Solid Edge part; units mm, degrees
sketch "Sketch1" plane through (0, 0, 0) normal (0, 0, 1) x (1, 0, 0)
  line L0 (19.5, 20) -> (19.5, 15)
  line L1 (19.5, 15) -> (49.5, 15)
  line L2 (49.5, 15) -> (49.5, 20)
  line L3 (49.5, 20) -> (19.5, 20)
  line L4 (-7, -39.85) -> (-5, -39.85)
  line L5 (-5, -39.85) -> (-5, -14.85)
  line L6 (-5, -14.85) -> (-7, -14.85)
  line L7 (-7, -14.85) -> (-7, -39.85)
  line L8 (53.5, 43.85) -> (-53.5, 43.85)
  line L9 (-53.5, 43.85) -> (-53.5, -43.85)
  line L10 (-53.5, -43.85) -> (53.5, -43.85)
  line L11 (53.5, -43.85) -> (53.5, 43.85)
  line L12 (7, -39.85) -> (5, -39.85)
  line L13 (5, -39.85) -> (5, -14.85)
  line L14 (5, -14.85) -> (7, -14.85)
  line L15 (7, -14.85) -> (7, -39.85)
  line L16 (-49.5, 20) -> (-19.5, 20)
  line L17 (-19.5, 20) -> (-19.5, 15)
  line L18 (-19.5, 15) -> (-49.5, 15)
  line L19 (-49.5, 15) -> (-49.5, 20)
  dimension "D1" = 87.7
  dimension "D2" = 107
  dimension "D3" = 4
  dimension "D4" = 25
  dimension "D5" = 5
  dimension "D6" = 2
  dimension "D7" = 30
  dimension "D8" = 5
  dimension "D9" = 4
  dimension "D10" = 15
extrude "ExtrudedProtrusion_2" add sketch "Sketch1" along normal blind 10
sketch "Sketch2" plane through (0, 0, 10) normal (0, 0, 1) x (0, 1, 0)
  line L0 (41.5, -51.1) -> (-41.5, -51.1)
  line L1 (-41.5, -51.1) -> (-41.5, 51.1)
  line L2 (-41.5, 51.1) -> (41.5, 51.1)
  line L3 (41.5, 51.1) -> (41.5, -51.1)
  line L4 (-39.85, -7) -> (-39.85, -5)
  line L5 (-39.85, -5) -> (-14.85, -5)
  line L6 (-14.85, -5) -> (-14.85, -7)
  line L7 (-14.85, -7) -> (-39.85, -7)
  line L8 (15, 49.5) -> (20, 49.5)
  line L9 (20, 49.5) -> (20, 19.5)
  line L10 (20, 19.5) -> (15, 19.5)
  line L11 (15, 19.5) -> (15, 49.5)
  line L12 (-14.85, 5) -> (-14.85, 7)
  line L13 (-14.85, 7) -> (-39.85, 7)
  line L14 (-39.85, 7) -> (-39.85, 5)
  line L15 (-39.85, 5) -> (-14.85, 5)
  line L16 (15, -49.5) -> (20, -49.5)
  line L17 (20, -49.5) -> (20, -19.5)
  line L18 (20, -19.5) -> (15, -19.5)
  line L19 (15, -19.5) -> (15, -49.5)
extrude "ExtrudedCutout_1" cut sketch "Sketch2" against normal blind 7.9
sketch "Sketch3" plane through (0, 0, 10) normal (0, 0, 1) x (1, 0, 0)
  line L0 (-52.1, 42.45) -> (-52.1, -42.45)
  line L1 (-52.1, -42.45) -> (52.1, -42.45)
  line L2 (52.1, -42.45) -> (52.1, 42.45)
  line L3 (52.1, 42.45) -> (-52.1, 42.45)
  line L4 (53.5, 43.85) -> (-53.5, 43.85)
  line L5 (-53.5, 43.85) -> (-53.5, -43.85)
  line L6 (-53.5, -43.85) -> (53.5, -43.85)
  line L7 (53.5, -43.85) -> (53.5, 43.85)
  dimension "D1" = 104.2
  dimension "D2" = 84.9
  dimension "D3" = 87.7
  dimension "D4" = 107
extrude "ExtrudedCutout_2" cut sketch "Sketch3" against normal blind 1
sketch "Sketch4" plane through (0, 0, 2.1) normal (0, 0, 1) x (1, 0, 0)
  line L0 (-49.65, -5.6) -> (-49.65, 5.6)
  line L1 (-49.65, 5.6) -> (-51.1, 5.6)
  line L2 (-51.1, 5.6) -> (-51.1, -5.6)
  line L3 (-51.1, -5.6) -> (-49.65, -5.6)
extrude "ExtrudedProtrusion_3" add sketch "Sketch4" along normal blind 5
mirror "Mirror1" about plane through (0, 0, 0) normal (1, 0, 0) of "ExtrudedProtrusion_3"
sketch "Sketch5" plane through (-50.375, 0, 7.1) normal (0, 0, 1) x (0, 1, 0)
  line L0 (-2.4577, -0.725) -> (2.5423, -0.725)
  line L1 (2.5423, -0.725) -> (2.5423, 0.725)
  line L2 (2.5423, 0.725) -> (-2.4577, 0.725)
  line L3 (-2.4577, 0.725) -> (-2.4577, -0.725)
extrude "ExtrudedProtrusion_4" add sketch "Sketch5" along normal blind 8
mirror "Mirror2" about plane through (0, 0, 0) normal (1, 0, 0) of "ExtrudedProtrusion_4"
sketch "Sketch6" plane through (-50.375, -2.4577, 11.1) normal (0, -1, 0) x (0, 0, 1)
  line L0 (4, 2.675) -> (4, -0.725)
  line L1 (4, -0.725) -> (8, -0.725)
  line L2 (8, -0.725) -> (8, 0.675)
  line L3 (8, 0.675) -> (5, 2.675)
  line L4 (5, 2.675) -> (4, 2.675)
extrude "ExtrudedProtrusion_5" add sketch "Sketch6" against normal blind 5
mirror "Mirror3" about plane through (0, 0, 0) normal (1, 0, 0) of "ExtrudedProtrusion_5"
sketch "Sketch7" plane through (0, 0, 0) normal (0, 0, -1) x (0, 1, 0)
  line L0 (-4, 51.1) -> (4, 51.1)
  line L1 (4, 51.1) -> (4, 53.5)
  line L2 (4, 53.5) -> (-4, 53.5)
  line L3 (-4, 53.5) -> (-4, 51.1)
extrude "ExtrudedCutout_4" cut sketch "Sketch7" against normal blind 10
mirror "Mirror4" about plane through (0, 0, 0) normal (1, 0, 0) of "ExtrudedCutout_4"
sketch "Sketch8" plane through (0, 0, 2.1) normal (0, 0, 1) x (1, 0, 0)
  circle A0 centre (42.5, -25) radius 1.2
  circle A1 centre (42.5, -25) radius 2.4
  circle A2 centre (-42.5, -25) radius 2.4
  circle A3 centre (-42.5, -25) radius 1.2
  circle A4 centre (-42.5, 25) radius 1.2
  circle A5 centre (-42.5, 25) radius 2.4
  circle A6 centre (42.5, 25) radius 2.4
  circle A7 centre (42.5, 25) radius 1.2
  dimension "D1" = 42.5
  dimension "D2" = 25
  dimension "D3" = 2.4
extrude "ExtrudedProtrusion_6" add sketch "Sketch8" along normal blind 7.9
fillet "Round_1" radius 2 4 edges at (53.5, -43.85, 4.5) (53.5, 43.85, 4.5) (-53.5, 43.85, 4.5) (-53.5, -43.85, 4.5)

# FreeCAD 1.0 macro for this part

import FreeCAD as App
import Part
import Sketcher
Q = App.Units.Quantity


def edges_at(feature, points):
    """Names of the edges that pass closest to the given points."""
    edges = feature.Shape.Edges
    near = lambda p: min(range(len(edges)), key=lambda i: edges[i].distToShape(Part.Vertex(*p))[0])
    return sorted({f"Edge{near(p) + 1}" for p in points})

doc = App.newDocument("Part")
params = doc.addObject("Spreadsheet::Sheet", "Params")
for row, (alias, value) in enumerate([
    ("sketch1_width", "107 mm"),
    ("sketch1_width2", "2 mm"),
    ("sketch1_width3", "30 mm"),
    ("sketch1_height", "25 mm"),
    ("sketch1_height2", "5 mm"),
    ("pad1_length", "10 mm"),
    ("sketch2_width", "2 mm"),
    ("sketch2_width2", "30 mm"),
    ("sketch2_height", "83 mm"),
    ("sketch2_height2", "25 mm"),
    ("sketch2_height3", "5 mm"),
    ("pocket1_length", "7.9 mm"),
    ("sketch3_width", "107 mm"),
    ("sketch3_width2", "104.2 mm"),
    ("sketch3_height", "87.7 mm"),
    ("sketch3_height2", "84.9 mm"),
    ("pocket2_length", "1 mm"),
    ("sketch4_height", "11.2 mm"),
    ("sketch4_width", "1.45 mm"),
    ("pad2_length", "5 mm"),
    ("sketch5_height", "5 mm"),
    ("sketch5_width", "1.45 mm"),
    ("pad3_length", "8 mm"),
    ("sketch6_height", "1 mm"),
    ("sketch6_height2", "4 mm"),
    ("sketch6_width", "3.4 mm"),
    ("sketch6_width2", "1.4 mm"),
    ("pad4_length", "5 mm"),
    ("sketch7_height", "8 mm"),
    ("sketch7_width", "2.4 mm"),
    ("pocket3_length", "10 mm"),
    ("sketch8_diameter", "4.8 mm"),
    ("sketch8_diameter2", "2.4 mm"),
    ("pad5_length", "7.9 mm"),
    ("fillet_radius", "2 mm"),
], start=1):
    params.set(f"A{row}", alias)
    params.set(f"B{row}", "=" + value)
    params.setAlias(f"B{row}", alias)

body = doc.addObject("PartDesign::Body", "Body")

# Sketch on XY plane
sketch1 = body.newObject("Sketcher::SketchObject", "Sketch")
sketch1.AttachmentSupport = (doc.getObject("XY_Plane"), [""])
sketch1.MapMode = "FlatFace"
sketch1.addGeometry(Part.LineSegment(App.Vector(53.5, -43.85, 0), App.Vector(53.5, 43.85, 0)), False)
sketch1.addGeometry(Part.LineSegment(App.Vector(53.5, 43.85, 0), App.Vector(-53.5, 43.85, 0)), False)
sketch1.addGeometry(Part.LineSegment(App.Vector(-53.5, 43.85, 0), App.Vector(-53.5, -43.85, 0)), False)
sketch1.addGeometry(Part.LineSegment(App.Vector(-53.5, -43.85, 0), App.Vector(53.5, -43.85, 0)), False)
sketch1.addGeometry(Part.LineSegment(App.Vector(-5, -39.85, 0), App.Vector(-7, -39.85, 0)), False)
sketch1.addGeometry(Part.LineSegment(App.Vector(-7, -39.85, 0), App.Vector(-7, -14.85, 0)), False)
sketch1.addGeometry(Part.LineSegment(App.Vector(-7, -14.85, 0), App.Vector(-5, -14.85, 0)), False)
sketch1.addGeometry(Part.LineSegment(App.Vector(-5, -14.85, 0), App.Vector(-5, -39.85, 0)), False)
sketch1.addGeometry(Part.LineSegment(App.Vector(7, -14.85, 0), App.Vector(7, -39.85, 0)), False)
sketch1.addGeometry(Part.LineSegment(App.Vector(7, -39.85, 0), App.Vector(5, -39.85, 0)), False)
sketch1.addGeometry(Part.LineSegment(App.Vector(5, -39.85, 0), App.Vector(5, -14.85, 0)), False)
sketch1.addGeometry(Part.LineSegment(App.Vector(5, -14.85, 0), App.Vector(7, -14.85, 0)), False)
sketch1.addGeometry(Part.LineSegment(App.Vector(-49.5, 15, 0), App.Vector(-49.5, 20, 0)), False)
sketch1.addGeometry(Part.LineSegment(App.Vector(-49.5, 20, 0), App.Vector(-19.5, 20, 0)), False)
sketch1.addGeometry(Part.LineSegment(App.Vector(-19.5, 20, 0), App.Vector(-19.5, 15, 0)), False)
sketch1.addGeometry(Part.LineSegment(App.Vector(-19.5, 15, 0), App.Vector(-49.5, 15, 0)), False)
sketch1.addGeometry(Part.LineSegment(App.Vector(19.5, 15, 0), App.Vector(19.5, 20, 0)), False)
sketch1.addGeometry(Part.LineSegment(App.Vector(19.5, 20, 0), App.Vector(49.5, 20, 0)), False)
sketch1.addGeometry(Part.LineSegment(App.Vector(49.5, 20, 0), App.Vector(49.5, 15, 0)), False)
sketch1.addGeometry(Part.LineSegment(App.Vector(49.5, 15, 0), App.Vector(19.5, 15, 0)), False)
sketch1.addConstraint(Sketcher.Constraint("Coincident", 0, 2, 1, 1))
sketch1.addConstraint(Sketcher.Constraint("Coincident", 1, 2, 2, 1))
sketch1.addConstraint(Sketcher.Constraint("Coincident", 2, 2, 3, 1))
sketch1.addConstraint(Sketcher.Constraint("Coincident", 3, 2, 0, 1))
sketch1.addConstraint(Sketcher.Constraint("Coincident", 4, 2, 5, 1))
sketch1.addConstraint(Sketcher.Constraint("Coincident", 5, 2, 6, 1))
sketch1.addConstraint(Sketcher.Constraint("Coincident", 6, 2, 7, 1))
sketch1.addConstraint(Sketcher.Constraint("Coincident", 7, 2, 4, 1))
sketch1.addConstraint(Sketcher.Constraint("Coincident", 8, 2, 9, 1))
sketch1.addConstraint(Sketcher.Constraint("Coincident", 9, 2, 10, 1))
sketch1.addConstraint(Sketcher.Constraint("Coincident", 10, 2, 11, 1))
sketch1.addConstraint(Sketcher.Constraint("Coincident", 11, 2, 8, 1))
sketch1.addConstraint(Sketcher.Constraint("Coincident", 12, 2, 13, 1))
sketch1.addConstraint(Sketcher.Constraint("Coincident", 13, 2, 14, 1))
sketch1.addConstraint(Sketcher.Constraint("Coincident", 14, 2, 15, 1))
sketch1.addConstraint(Sketcher.Constraint("Coincident", 15, 2, 12, 1))
sketch1.addConstraint(Sketcher.Constraint("Coincident", 16, 2, 17, 1))
sketch1.addConstraint(Sketcher.Constraint("Coincident", 17, 2, 18, 1))
sketch1.addConstraint(Sketcher.Constraint("Coincident", 18, 2, 19, 1))
sketch1.addConstraint(Sketcher.Constraint("Coincident", 19, 2, 16, 1))
sketch1.addConstraint(Sketcher.Constraint("Vertical", 0))
sketch1.addConstraint(Sketcher.Constraint("Horizontal", 1))
sketch1.addConstraint(Sketcher.Constraint("Vertical", 2))
sketch1.addConstraint(Sketcher.Constraint("Horizontal", 3))
sketch1.addConstraint(Sketcher.Constraint("Horizontal", 4))
sketch1.addConstraint(Sketcher.Constraint("Vertical", 5))
sketch1.addConstraint(Sketcher.Constraint("Horizontal", 6))
sketch1.addConstraint(Sketcher.Constraint("Vertical", 7))
sketch1.addConstraint(Sketcher.Constraint("Vertical", 8))
sketch1.addConstraint(Sketcher.Constraint("Horizontal", 9))
sketch1.addConstraint(Sketcher.Constraint("Vertical", 10))
sketch1.addConstraint(Sketcher.Constraint("Horizontal", 11))
sketch1.addConstraint(Sketcher.Constraint("Vertical", 12))
sketch1.addConstraint(Sketcher.Constraint("Horizontal", 13))
sketch1.addConstraint(Sketcher.Constraint("Vertical", 14))
sketch1.addConstraint(Sketcher.Constraint("Horizontal", 15))
sketch1.addConstraint(Sketcher.Constraint("Vertical", 16))
sketch1.addConstraint(Sketcher.Constraint("Horizontal", 17))
sketch1.addConstraint(Sketcher.Constraint("Vertical", 18))
sketch1.addConstraint(Sketcher.Constraint("Horizontal", 19))
sketch1.addConstraint(Sketcher.Constraint("Symmetric", 0, 2, 2, 2, -1, 1))
sketch1.addConstraint(Sketcher.Constraint("Symmetric", 4, 2, 8, 2, -2))
sketch1.addConstraint(Sketcher.Constraint("Symmetric", 6, 2, 10, 2, -2))
sketch1.addConstraint(Sketcher.Constraint("Symmetric", 13, 2, 16, 2, -2))
sketch1.addConstraint(Sketcher.Constraint("Symmetric", 15, 2, 18, 2, -2))
sketch1.addConstraint(Sketcher.Constraint("DistanceX", 1, 2, 1, 1, Q("107 mm")))
sketch1.addConstraint(Sketcher.Constraint("DistanceX", 4, 2, 4, 1, Q("2 mm")))
sketch1.addConstraint(Sketcher.Constraint("DistanceX", 13, 1, 13, 2, Q("30 mm")))
sketch1.addConstraint(Sketcher.Constraint("DistanceY", 5, 1, 5, 2, Q("25 mm")))
sketch1.addConstraint(Sketcher.Constraint("DistanceY", 12, 1, 12, 2, Q("5 mm")))
sketch1.addConstraint(Sketcher.Constraint("DistanceY", 0, 1, 0, 2, Q("87.7 mm")))
sketch1.addConstraint(Sketcher.Constraint("DistanceX", 4, 2, -1, 1, Q("7 mm")))
sketch1.addConstraint(Sketcher.Constraint("DistanceY", -1, 1, 12, 2, Q("20 mm")))
sketch1.addConstraint(Sketcher.Constraint("DistanceY", 2, 2, 4, 2, Q("4 mm")))
sketch1.addConstraint(Sketcher.Constraint("DistanceX", 1, 2, 12, 2, Q("4 mm")))
sketch1.setExpression("Constraints[45]", "Params.sketch1_width")
sketch1.setExpression("Constraints[46]", "Params.sketch1_width2")
sketch1.setExpression("Constraints[47]", "Params.sketch1_width3")
sketch1.setExpression("Constraints[48]", "Params.sketch1_height")
sketch1.setExpression("Constraints[49]", "Params.sketch1_height2")
pad1 = body.newObject("PartDesign::Pad", "Pad")
pad1.Profile = sketch1
pad1.setExpression("Length", "Params.pad1_length")

# Sketch on XY plane
sketch2 = body.newObject("Sketcher::SketchObject", "Sketch001")
sketch2.AttachmentSupport = (doc.getObject("XY_Plane"), [""])
sketch2.MapMode = "FlatFace"
sketch2.AttachmentOffset = App.Placement(App.Vector(0, 0, 10), App.Rotation())
sketch2.addGeometry(Part.LineSegment(App.Vector(51.1, -41.5, 0), App.Vector(51.1, 41.5, 0)), False)
sketch2.addGeometry(Part.LineSegment(App.Vector(51.1, 41.5, 0), App.Vector(-51.1, 41.5, 0)), False)
sketch2.addGeometry(Part.LineSegment(App.Vector(-51.1, 41.5, 0), App.Vector(-51.1, -41.5, 0)), False)
sketch2.addGeometry(Part.LineSegment(App.Vector(-51.1, -41.5, 0), App.Vector(51.1, -41.5, 0)), False)
sketch2.addGeometry(Part.LineSegment(App.Vector(7, -14.85, 0), App.Vector(7, -39.85, 0)), False)
sketch2.addGeometry(Part.LineSegment(App.Vector(7, -39.85, 0), App.Vector(5, -39.85, 0)), False)
sketch2.addGeometry(Part.LineSegment(App.Vector(5, -39.85, 0), App.Vector(5, -14.85, 0)), False)
sketch2.addGeometry(Part.LineSegment(App.Vector(5, -14.85, 0), App.Vector(7, -14.85, 0)), False)
sketch2.addGeometry(Part.LineSegment(App.Vector(49.5, 20, 0), App.Vector(49.5, 15, 0)), False)
sketch2.addGeometry(Part.LineSegment(App.Vector(49.5, 15, 0), App.Vector(19.5, 15, 0)), False)
sketch2.addGeometry(Part.LineSegment(App.Vector(19.5, 15, 0), App.Vector(19.5, 20, 0)), False)
sketch2.addGeometry(Part.LineSegment(App.Vector(19.5, 20, 0), App.Vector(49.5, 20, 0)), False)
sketch2.addGeometry(Part.LineSegment(App.Vector(-7, -14.85, 0), App.Vector(-5, -14.85, 0)), False)
sketch2.addGeometry(Part.LineSegment(App.Vector(-5, -14.85, 0), App.Vector(-5, -39.85, 0)), False)
sketch2.addGeometry(Part.LineSegment(App.Vector(-5, -39.85, 0), App.Vector(-7, -39.85, 0)), False)
sketch2.addGeometry(Part.LineSegment(App.Vector(-7, -39.85, 0), App.Vector(-7, -14.85, 0)), False)
sketch2.addGeometry(Part.LineSegment(App.Vector(-19.5, 15, 0), App.Vector(-49.5, 15, 0)), False)
sketch2.addGeometry(Part.LineSegment(App.Vector(-49.5, 15, 0), App.Vector(-49.5, 20, 0)), False)
sketch2.addGeometry(Part.LineSegment(App.Vector(-49.5, 20, 0), App.Vector(-19.5, 20, 0)), False)
sketch2.addGeometry(Part.LineSegment(App.Vector(-19.5, 20, 0), App.Vector(-19.5, 15, 0)), False)
sketch2.addConstraint(Sketcher.Constraint("Coincident", 0, 2, 1, 1))
sketch2.addConstraint(Sketcher.Constraint("Coincident", 1, 2, 2, 1))
sketch2.addConstraint(Sketcher.Constraint("Coincident", 2, 2, 3, 1))
sketch2.addConstraint(Sketcher.Constraint("Coincident", 3, 2, 0, 1))
sketch2.addConstraint(Sketcher.Constraint("Coincident", 4, 2, 5, 1))
sketch2.addConstraint(Sketcher.Constraint("Coincident", 5, 2, 6, 1))
sketch2.addConstraint(Sketcher.Constraint("Coincident", 6, 2, 7, 1))
sketch2.addConstraint(Sketcher.Constraint("Coincident", 7, 2, 4, 1))
sketch2.addConstraint(Sketcher.Constraint("Coincident", 8, 2, 9, 1))
sketch2.addConstraint(Sketcher.Constraint("Coincident", 9, 2, 10, 1))
sketch2.addConstraint(Sketcher.Constraint("Coincident", 10, 2, 11, 1))
sketch2.addConstraint(Sketcher.Constraint("Coincident", 11, 2, 8, 1))
sketch2.addConstraint(Sketcher.Constraint("Coincident", 12, 2, 13, 1))
sketch2.addConstraint(Sketcher.Constraint("Coincident", 13, 2, 14, 1))
sketch2.addConstraint(Sketcher.Constraint("Coincident", 14, 2, 15, 1))
sketch2.addConstraint(Sketcher.Constraint("Coincident", 15, 2, 12, 1))
sketch2.addConstraint(Sketcher.Constraint("Coincident", 16, 2, 17, 1))
sketch2.addConstraint(Sketcher.Constraint("Coincident", 17, 2, 18, 1))
sketch2.addConstraint(Sketcher.Constraint("Coincident", 18, 2, 19, 1))
sketch2.addConstraint(Sketcher.Constraint("Coincident", 19, 2, 16, 1))
sketch2.addConstraint(Sketcher.Constraint("Vertical", 0))
sketch2.addConstraint(Sketcher.Constraint("Horizontal", 1))
sketch2.addConstraint(Sketcher.Constraint("Vertical", 2))
sketch2.addConstraint(Sketcher.Constraint("Horizontal", 3))
sketch2.addConstraint(Sketcher.Constraint("Vertical", 4))
sketch2.addConstraint(Sketcher.Constraint("Horizontal", 5))
sketch2.addConstraint(Sketcher.Constraint("Vertical", 6))
sketch2.addConstraint(Sketcher.Constraint("Horizontal", 7))
sketch2.addConstraint(Sketcher.Constraint("Vertical", 8))
sketch2.addConstraint(Sketcher.Constraint("Horizontal", 9))
sketch2.addConstraint(Sketcher.Constraint("Vertical", 10))
sketch2.addConstraint(Sketcher.Constraint("Horizontal", 11))
sketch2.addConstraint(Sketcher.Constraint("Horizontal", 12))
sketch2.addConstraint(Sketcher.Constraint("Vertical", 13))
sketch2.addConstraint(Sketcher.Constraint("Horizontal", 14))
sketch2.addConstraint(Sketcher.Constraint("Vertical", 15))
sketch2.addConstraint(Sketcher.Constraint("Horizontal", 16))
sketch2.addConstraint(Sketcher.Constraint("Vertical", 17))
sketch2.addConstraint(Sketcher.Constraint("Horizontal", 18))
sketch2.addConstraint(Sketcher.Constraint("Vertical", 19))
sketch2.addConstraint(Sketcher.Constraint("Symmetric", 0, 2, 2, 2, -1, 1))
sketch2.addConstraint(Sketcher.Constraint("Symmetric", 6, 2, 12, 2, -2))
sketch2.addConstraint(Sketcher.Constraint("Symmetric", 4, 2, 14, 2, -2))
sketch2.addConstraint(Sketcher.Constraint("Symmetric", 8, 2, 16, 2, -2))
sketch2.addConstraint(Sketcher.Constraint("Symmetric", 10, 2, 18, 2, -2))
sketch2.addConstraint(Sketcher.Constraint("DistanceX", 5, 2, 5, 1, Q("2 mm")))
sketch2.addConstraint(Sketcher.Constraint("DistanceX", 9, 2, 9, 1, Q("30 mm")))
sketch2.addConstraint(Sketcher.Constraint("DistanceY", 0, 1, 0, 2, Q("83 mm")))
sketch2.addConstraint(Sketcher.Constraint("DistanceY", 4, 2, 4, 1, Q("25 mm")))
sketch2.addConstraint(Sketcher.Constraint("DistanceY", 8, 2, 8, 1, Q("5 mm")))
sketch2.addConstraint(Sketcher.Constraint("DistanceX", 1, 2, 1, 1, Q("102.2 mm")))
sketch2.addConstraint(Sketcher.Constraint("DistanceX", -1, 1, 4, 2, Q("7 mm")))
sketch2.addConstraint(Sketcher.Constraint("DistanceY", -1, 1, 8, 2, Q("15 mm")))
sketch2.addConstraint(Sketcher.Constraint("DistanceX", -1, 1, 8, 2, Q("49.5 mm")))
sketch2.addConstraint(Sketcher.Constraint("DistanceY", 4, 2, -1, 1, Q("39.85 mm")))
sketch2.setExpression("Constraints[45]", "Params.sketch2_width")
sketch2.setExpression("Constraints[46]", "Params.sketch2_width2")
sketch2.setExpression("Constraints[47]", "Params.sketch2_height")
sketch2.setExpression("Constraints[48]", "Params.sketch2_height2")
sketch2.setExpression("Constraints[49]", "Params.sketch2_height3")
pocket1 = body.newObject("PartDesign::Pocket", "Pocket")
pocket1.Profile = sketch2
pocket1.setExpression("Length", "Params.pocket1_length")

# Sketch on XY plane
sketch3 = body.newObject("Sketcher::SketchObject", "Sketch002")
sketch3.AttachmentSupport = (doc.getObject("XY_Plane"), [""])
sketch3.MapMode = "FlatFace"
sketch3.AttachmentOffset = App.Placement(App.Vector(0, 0, 10), App.Rotation())
sketch3.addGeometry(Part.LineSegment(App.Vector(53.5, -43.85, 0), App.Vector(53.5, 43.85, 0)), False)
sketch3.addGeometry(Part.LineSegment(App.Vector(53.5, 43.85, 0), App.Vector(-53.5, 43.85, 0)), False)
sketch3.addGeometry(Part.LineSegment(App.Vector(-53.5, 43.85, 0), App.Vector(-53.5, -43.85, 0)), False)
sketch3.addGeometry(Part.LineSegment(App.Vector(-53.5, -43.85, 0), App.Vector(53.5, -43.85, 0)), False)
sketch3.addGeometry(Part.LineSegment(App.Vector(-52.1, -42.45, 0), App.Vector(-52.1, 42.45, 0)), False)
sketch3.addGeometry(Part.LineSegment(App.Vector(-52.1, 42.45, 0), App.Vector(52.1, 42.45, 0)), False)
sketch3.addGeometry(Part.LineSegment(App.Vector(52.1, 42.45, 0), App.Vector(52.1, -42.45, 0)), False)
sketch3.addGeometry(Part.LineSegment(App.Vector(52.1, -42.45, 0), App.Vector(-52.1, -42.45, 0)), False)
sketch3.addConstraint(Sketcher.Constraint("Coincident", 0, 2, 1, 1))
sketch3.addConstraint(Sketcher.Constraint("Coincident", 1, 2, 2, 1))
sketch3.addConstraint(Sketcher.Constraint("Coincident", 2, 2, 3, 1))
sketch3.addConstraint(Sketcher.Constraint("Coincident", 3, 2, 0, 1))
sketch3.addConstraint(Sketcher.Constraint("Coincident", 4, 2, 5, 1))
sketch3.addConstraint(Sketcher.Constraint("Coincident", 5, 2, 6, 1))
sketch3.addConstraint(Sketcher.Constraint("Coincident", 6, 2, 7, 1))
sketch3.addConstraint(Sketcher.Constraint("Coincident", 7, 2, 4, 1))
sketch3.addConstraint(Sketcher.Constraint("Vertical", 0))
sketch3.addConstraint(Sketcher.Constraint("Horizontal", 1))
sketch3.addConstraint(Sketcher.Constraint("Vertical", 2))
sketch3.addConstraint(Sketcher.Constraint("Horizontal", 3))
sketch3.addConstraint(Sketcher.Constraint("Vertical", 4))
sketch3.addConstraint(Sketcher.Constraint("Horizontal", 5))
sketch3.addConstraint(Sketcher.Constraint("Vertical", 6))
sketch3.addConstraint(Sketcher.Constraint("Horizontal", 7))
sketch3.addConstraint(Sketcher.Constraint("Symmetric", 0, 2, 2, 2, -1, 1))
sketch3.addConstraint(Sketcher.Constraint("Symmetric", 4, 2, 6, 2, -1, 1))
sketch3.addConstraint(Sketcher.Constraint("DistanceX", 1, 2, 1, 1, Q("107 mm")))
sketch3.addConstraint(Sketcher.Constraint("DistanceX", 5, 1, 5, 2, Q("104.2 mm")))
sketch3.addConstraint(Sketcher.Constraint("DistanceY", 0, 1, 0, 2, Q("87.7 mm")))
sketch3.addConstraint(Sketcher.Constraint("DistanceY", 4, 1, 4, 2, Q("84.9 mm")))
sketch3.setExpression("Constraints[18]", "Params.sketch3_width")
sketch3.setExpression("Constraints[19]", "Params.sketch3_width2")
sketch3.setExpression("Constraints[20]", "Params.sketch3_height")
sketch3.setExpression("Constraints[21]", "Params.sketch3_height2")
pocket2 = body.newObject("PartDesign::Pocket", "Pocket001")
pocket2.Profile = sketch3
pocket2.setExpression("Length", "Params.pocket2_length")

# Sketch on XY plane
sketch4 = body.newObject("Sketcher::SketchObject", "Sketch003")
sketch4.AttachmentSupport = (doc.getObject("XY_Plane"), [""])
sketch4.MapMode = "FlatFace"
sketch4.AttachmentOffset = App.Placement(App.Vector(0, 0, 2.1), App.Rotation())
sketch4.addGeometry(Part.LineSegment(App.Vector(-51.1, -5.6, 0), App.Vector(-49.65, -5.6, 0)), False)
sketch4.addGeometry(Part.LineSegment(App.Vector(-49.65, -5.6, 0), App.Vector(-49.65, 5.6, 0)), False)
sketch4.addGeometry(Part.LineSegment(App.Vector(-49.65, 5.6, 0), App.Vector(-51.1, 5.6, 0)), False)
sketch4.addGeometry(Part.LineSegment(App.Vector(-51.1, 5.6, 0), App.Vector(-51.1, -5.6, 0)), False)
sketch4.addConstraint(Sketcher.Constraint("Coincident", 0, 2, 1, 1))
sketch4.addConstraint(Sketcher.Constraint("Coincident", 1, 2, 2, 1))
sketch4.addConstraint(Sketcher.Constraint("Coincident", 2, 2, 3, 1))
sketch4.addConstraint(Sketcher.Constraint("Coincident", 3, 2, 0, 1))
sketch4.addConstraint(Sketcher.Constraint("Horizontal", 0))
sketch4.addConstraint(Sketcher.Constraint("Vertical", 1))
sketch4.addConstraint(Sketcher.Constraint("Horizontal", 2))
sketch4.addConstraint(Sketcher.Constraint("Vertical", 3))
sketch4.addConstraint(Sketcher.Constraint("DistanceY", 1, 1, 1, 2, Q("11.2 mm")))
sketch4.addConstraint(Sketcher.Constraint("DistanceX", 0, 1, 0, 2, Q("1.45 mm")))
sketch4.addConstraint(Sketcher.Constraint("DistanceY", 0, 2, -1, 1, Q("5.6 mm")))
sketch4.addConstraint(Sketcher.Constraint("DistanceX", 2, 2, -1, 1, Q("51.1 mm")))
sketch4.setExpression("Constraints[8]", "Params.sketch4_height")
sketch4.setExpression("Constraints[9]", "Params.sketch4_width")
pad2 = body.newObject("PartDesign::Pad", "Pad001")
pad2.Profile = sketch4
pad2.setExpression("Length", "Params.pad2_length")
doc.recompute()

mirrored = body.newObject("PartDesign::Mirrored", "Mirrored")
mirrored.Originals = [pad2]
mirrored.MirrorPlane = (doc.getObject("YZ_Plane"), [""])
body.Tip = mirrored

# Sketch on XY plane
sketch5 = body.newObject("Sketcher::SketchObject", "Sketch004")
sketch5.AttachmentSupport = (doc.getObject("XY_Plane"), [""])
sketch5.MapMode = "FlatFace"
sketch5.AttachmentOffset = App.Placement(App.Vector(0, 0, 7.1), App.Rotation())
sketch5.addGeometry(Part.LineSegment(App.Vector(-51.1, -2.4577, 0), App.Vector(-49.65, -2.4577, 0)), False)
sketch5.addGeometry(Part.LineSegment(App.Vector(-49.65, -2.4577, 0), App.Vector(-49.65, 2.5423, 0)), False)
sketch5.addGeometry(Part.LineSegment(App.Vector(-49.65, 2.5423, 0), App.Vector(-51.1, 2.5423, 0)), False)
sketch5.addGeometry(Part.LineSegment(App.Vector(-51.1, 2.5423, 0), App.Vector(-51.1, -2.4577, 0)), False)
sketch5.addConstraint(Sketcher.Constraint("Coincident", 0, 2, 1, 1))
sketch5.addConstraint(Sketcher.Constraint("Coincident", 1, 2, 2, 1))
sketch5.addConstraint(Sketcher.Constraint("Coincident", 2, 2, 3, 1))
sketch5.addConstraint(Sketcher.Constraint("Coincident", 3, 2, 0, 1))
sketch5.addConstraint(Sketcher.Constraint("Horizontal", 0))
sketch5.addConstraint(Sketcher.Constraint("Vertical", 1))
sketch5.addConstraint(Sketcher.Constraint("Horizontal", 2))
sketch5.addConstraint(Sketcher.Constraint("Vertical", 3))
sketch5.addConstraint(Sketcher.Constraint("DistanceY", 1, 1, 1, 2, Q("5 mm")))
sketch5.addConstraint(Sketcher.Constraint("DistanceX", 0, 1, 0, 2, Q("1.45 mm")))
sketch5.addConstraint(Sketcher.Constraint("DistanceX", 2, 2, -1, 1, Q("51.1 mm")))
sketch5.addConstraint(Sketcher.Constraint("DistanceY", 0, 2, -1, 1, Q("2.4577 mm")))
sketch5.setExpression("Constraints[8]", "Params.sketch5_height")
sketch5.setExpression("Constraints[9]", "Params.sketch5_width")
pad3 = body.newObject("PartDesign::Pad", "Pad002")
pad3.Profile = sketch5
pad3.setExpression("Length", "Params.pad3_length")
doc.recompute()

mirrored2 = body.newObject("PartDesign::Mirrored", "Mirrored001")
mirrored2.Originals = [pad3]
mirrored2.MirrorPlane = (doc.getObject("YZ_Plane"), [""])
body.Tip = mirrored2

# Sketch on XZ plane
sketch6 = body.newObject("Sketcher::SketchObject", "Sketch005")
sketch6.AttachmentSupport = (doc.getObject("XZ_Plane"), [""])
sketch6.MapMode = "FlatFace"
sketch6.AttachmentOffset = App.Placement(App.Vector(0, 0, 2.4577), App.Rotation())
sketch6.addGeometry(Part.LineSegment(App.Vector(-53.05, 16.1, 0), App.Vector(-53.05, 15.1, 0)), False)
sketch6.addGeometry(Part.LineSegment(App.Vector(-53.05, 15.1, 0), App.Vector(-49.65, 15.1, 0)), False)
sketch6.addGeometry(Part.LineSegment(App.Vector(-49.65, 15.1, 0), App.Vector(-49.65, 19.1, 0)), False)
sketch6.addGeometry(Part.LineSegment(App.Vector(-49.65, 19.1, 0), App.Vector(-51.05, 19.1, 0)), False)
sketch6.addGeometry(Part.LineSegment(App.Vector(-51.05, 19.1, 0), App.Vector(-53.05, 16.1, 0)), False)
sketch6.addConstraint(Sketcher.Constraint("Coincident", 0, 2, 1, 1))
sketch6.addConstraint(Sketcher.Constraint("Coincident", 1, 2, 2, 1))
sketch6.addConstraint(Sketcher.Constraint("Coincident", 2, 2, 3, 1))
sketch6.addConstraint(Sketcher.Constraint("Coincident", 3, 2, 4, 1))
sketch6.addConstraint(Sketcher.Constraint("Coincident", 4, 2, 0, 1))
sketch6.addConstraint(Sketcher.Constraint("Vertical", 0))
sketch6.addConstraint(Sketcher.Constraint("Horizontal", 1))
sketch6.addConstraint(Sketcher.Constraint("Vertical", 2))
sketch6.addConstraint(Sketcher.Constraint("Horizontal", 3))
sketch6.addConstraint(Sketcher.Constraint("DistanceY", 0, 2, 0, 1, Q("1 mm")))
sketch6.addConstraint(Sketcher.Constraint("DistanceY", 2, 1, 2, 2, Q("4 mm")))
sketch6.addConstraint(Sketcher.Constraint("DistanceX", 1, 1, 1, 2, Q("3.4 mm")))
sketch6.addConstraint(Sketcher.Constraint("DistanceX", 3, 2, 3, 1, Q("1.4 mm")))
sketch6.addConstraint(Sketcher.Constraint("DistanceY", -1, 1, 0, 2, Q("15.1 mm")))
sketch6.addConstraint(Sketcher.Constraint("DistanceX", 0, 2, -1, 1, Q("53.05 mm")))
sketch6.setExpression("Constraints[9]", "Params.sketch6_height")
sketch6.setExpression("Constraints[10]", "Params.sketch6_height2")
sketch6.setExpression("Constraints[11]", "Params.sketch6_width")
sketch6.setExpression("Constraints[12]", "Params.sketch6_width2")
pad4 = body.newObject("PartDesign::Pad", "Pad003")
pad4.Profile = sketch6
pad4.setExpression("Length", "Params.pad4_length")
pad4.Reversed = True
doc.recompute()

mirrored3 = body.newObject("PartDesign::Mirrored", "Mirrored002")
mirrored3.Originals = [pad4]
mirrored3.MirrorPlane = (doc.getObject("YZ_Plane"), [""])
body.Tip = mirrored3

# Sketch on XY plane
sketch7 = body.newObject("Sketcher::SketchObject", "Sketch006")
sketch7.AttachmentSupport = (doc.getObject("XY_Plane"), [""])
sketch7.MapMode = "FlatFace"
sketch7.addGeometry(Part.LineSegment(App.Vector(53.5, -4, 0), App.Vector(51.1, -4, 0)), False)
sketch7.addGeometry(Part.LineSegment(App.Vector(51.1, -4, 0), App.Vector(51.1, 4, 0)), False)
sketch7.addGeometry(Part.LineSegment(App.Vector(51.1, 4, 0), App.Vector(53.5, 4, 0)), False)
sketch7.addGeometry(Part.LineSegment(App.Vector(53.5, 4, 0), App.Vector(53.5, -4, 0)), False)
sketch7.addConstraint(Sketcher.Constraint("Coincident", 0, 2, 1, 1))
sketch7.addConstraint(Sketcher.Constraint("Coincident", 1, 2, 2, 1))
sketch7.addConstraint(Sketcher.Constraint("Coincident", 2, 2, 3, 1))
sketch7.addConstraint(Sketcher.Constraint("Coincident", 3, 2, 0, 1))
sketch7.addConstraint(Sketcher.Constraint("Horizontal", 0))
sketch7.addConstraint(Sketcher.Constraint("Vertical", 1))
sketch7.addConstraint(Sketcher.Constraint("Horizontal", 2))
sketch7.addConstraint(Sketcher.Constraint("Vertical", 3))
sketch7.addConstraint(Sketcher.Constraint("DistanceY", 1, 1, 1, 2, Q("8 mm")))
sketch7.addConstraint(Sketcher.Constraint("DistanceX", 0, 2, 0, 1, Q("2.4 mm")))
sketch7.addConstraint(Sketcher.Constraint("DistanceY", 0, 2, -1, 1, Q("4 mm")))
sketch7.addConstraint(Sketcher.Constraint("DistanceX", -1, 1, 0, 2, Q("51.1 mm")))
sketch7.setExpression("Constraints[8]", "Params.sketch7_height")
sketch7.setExpression("Constraints[9]", "Params.sketch7_width")
pocket3 = body.newObject("PartDesign::Pocket", "Pocket002")
pocket3.Profile = sketch7
pocket3.setExpression("Length", "Params.pocket3_length")
pocket3.Reversed = True
doc.recompute()

mirrored4 = body.newObject("PartDesign::Mirrored", "Mirrored003")
mirrored4.Originals = [pocket3]
mirrored4.MirrorPlane = (doc.getObject("YZ_Plane"), [""])
body.Tip = mirrored4

# Sketch on XY plane
sketch8 = body.newObject("Sketcher::SketchObject", "Sketch007")
sketch8.AttachmentSupport = (doc.getObject("XY_Plane"), [""])
sketch8.MapMode = "FlatFace"
sketch8.AttachmentOffset = App.Placement(App.Vector(0, 0, 2.1), App.Rotation())
sketch8.addGeometry(Part.Circle(App.Vector(42.5, -25, 0), App.Vector(0, 0, 1), 2.4), False)
sketch8.addGeometry(Part.Circle(App.Vector(42.5, -25, 0), App.Vector(0, 0, 1), 1.2), False)
sketch8.addGeometry(Part.Circle(App.Vector(-42.5, -25, 0), App.Vector(0, 0, 1), 2.4), False)
sketch8.addGeometry(Part.Circle(App.Vector(-42.5, -25, 0), App.Vector(0, 0, 1), 1.2), False)
sketch8.addGeometry(Part.Circle(App.Vector(-42.5, 25, 0), App.Vector(0, 0, 1), 2.4), False)
sketch8.addGeometry(Part.Circle(App.Vector(-42.5, 25, 0), App.Vector(0, 0, 1), 1.2), False)
sketch8.addGeometry(Part.Circle(App.Vector(42.5, 25, 0), App.Vector(0, 0, 1), 2.4), False)
sketch8.addGeometry(Part.Circle(App.Vector(42.5, 25, 0), App.Vector(0, 0, 1), 1.2), False)
sketch8.addConstraint(Sketcher.Constraint("Coincident", 1, 3, 0, 3))
sketch8.addConstraint(Sketcher.Constraint("Coincident", 3, 3, 2, 3))
sketch8.addConstraint(Sketcher.Constraint("Coincident", 5, 3, 4, 3))
sketch8.addConstraint(Sketcher.Constraint("Coincident", 7, 3, 6, 3))
sketch8.addConstraint(Sketcher.Constraint("Equal", 0, 2))
sketch8.addConstraint(Sketcher.Constraint("Equal", 1, 3))
sketch8.addConstraint(Sketcher.Constraint("Equal", 2, 4))
sketch8.addConstraint(Sketcher.Constraint("Equal", 3, 5))
sketch8.addConstraint(Sketcher.Constraint("Equal", 4, 6))
sketch8.addConstraint(Sketcher.Constraint("Equal", 5, 7))
sketch8.addConstraint(Sketcher.Constraint("Symmetric", 0, 3, 4, 3, -1, 1))
sketch8.addConstraint(Sketcher.Constraint("Symmetric", 2, 3, 6, 3, -1, 1))
sketch8.addConstraint(Sketcher.Constraint("Symmetric", 0, 3, 2, 3, -2))
sketch8.addConstraint(Sketcher.Constraint("Diameter", 0, Q("4.8 mm")))
sketch8.addConstraint(Sketcher.Constraint("Diameter", 1, Q("2.4 mm")))
sketch8.addConstraint(Sketcher.Constraint("DistanceY", 0, 3, -1, 1, Q("25 mm")))
sketch8.addConstraint(Sketcher.Constraint("DistanceX", 2, 3, 0, 3, Q("85 mm")))
sketch8.setExpression("Constraints[13]", "Params.sketch8_diameter")
sketch8.setExpression("Constraints[14]", "Params.sketch8_diameter2")
pad5 = body.newObject("PartDesign::Pad", "Pad004")
pad5.Profile = sketch8
pad5.setExpression("Length", "Params.pad5_length")
doc.recompute()

fillet = body.newObject("PartDesign::Fillet", "Fillet")
fillet.Base = (pad5, edges_at(pad5, [
    (53.5, -43.85, 4.5),
    (53.5, 43.85, 4.5),
    (-53.5, 43.85, 4.5),
    (-53.5, -43.85, 4.5),
]))
fillet.setExpression("Radius", "Params.fillet_radius")

doc.recompute()
